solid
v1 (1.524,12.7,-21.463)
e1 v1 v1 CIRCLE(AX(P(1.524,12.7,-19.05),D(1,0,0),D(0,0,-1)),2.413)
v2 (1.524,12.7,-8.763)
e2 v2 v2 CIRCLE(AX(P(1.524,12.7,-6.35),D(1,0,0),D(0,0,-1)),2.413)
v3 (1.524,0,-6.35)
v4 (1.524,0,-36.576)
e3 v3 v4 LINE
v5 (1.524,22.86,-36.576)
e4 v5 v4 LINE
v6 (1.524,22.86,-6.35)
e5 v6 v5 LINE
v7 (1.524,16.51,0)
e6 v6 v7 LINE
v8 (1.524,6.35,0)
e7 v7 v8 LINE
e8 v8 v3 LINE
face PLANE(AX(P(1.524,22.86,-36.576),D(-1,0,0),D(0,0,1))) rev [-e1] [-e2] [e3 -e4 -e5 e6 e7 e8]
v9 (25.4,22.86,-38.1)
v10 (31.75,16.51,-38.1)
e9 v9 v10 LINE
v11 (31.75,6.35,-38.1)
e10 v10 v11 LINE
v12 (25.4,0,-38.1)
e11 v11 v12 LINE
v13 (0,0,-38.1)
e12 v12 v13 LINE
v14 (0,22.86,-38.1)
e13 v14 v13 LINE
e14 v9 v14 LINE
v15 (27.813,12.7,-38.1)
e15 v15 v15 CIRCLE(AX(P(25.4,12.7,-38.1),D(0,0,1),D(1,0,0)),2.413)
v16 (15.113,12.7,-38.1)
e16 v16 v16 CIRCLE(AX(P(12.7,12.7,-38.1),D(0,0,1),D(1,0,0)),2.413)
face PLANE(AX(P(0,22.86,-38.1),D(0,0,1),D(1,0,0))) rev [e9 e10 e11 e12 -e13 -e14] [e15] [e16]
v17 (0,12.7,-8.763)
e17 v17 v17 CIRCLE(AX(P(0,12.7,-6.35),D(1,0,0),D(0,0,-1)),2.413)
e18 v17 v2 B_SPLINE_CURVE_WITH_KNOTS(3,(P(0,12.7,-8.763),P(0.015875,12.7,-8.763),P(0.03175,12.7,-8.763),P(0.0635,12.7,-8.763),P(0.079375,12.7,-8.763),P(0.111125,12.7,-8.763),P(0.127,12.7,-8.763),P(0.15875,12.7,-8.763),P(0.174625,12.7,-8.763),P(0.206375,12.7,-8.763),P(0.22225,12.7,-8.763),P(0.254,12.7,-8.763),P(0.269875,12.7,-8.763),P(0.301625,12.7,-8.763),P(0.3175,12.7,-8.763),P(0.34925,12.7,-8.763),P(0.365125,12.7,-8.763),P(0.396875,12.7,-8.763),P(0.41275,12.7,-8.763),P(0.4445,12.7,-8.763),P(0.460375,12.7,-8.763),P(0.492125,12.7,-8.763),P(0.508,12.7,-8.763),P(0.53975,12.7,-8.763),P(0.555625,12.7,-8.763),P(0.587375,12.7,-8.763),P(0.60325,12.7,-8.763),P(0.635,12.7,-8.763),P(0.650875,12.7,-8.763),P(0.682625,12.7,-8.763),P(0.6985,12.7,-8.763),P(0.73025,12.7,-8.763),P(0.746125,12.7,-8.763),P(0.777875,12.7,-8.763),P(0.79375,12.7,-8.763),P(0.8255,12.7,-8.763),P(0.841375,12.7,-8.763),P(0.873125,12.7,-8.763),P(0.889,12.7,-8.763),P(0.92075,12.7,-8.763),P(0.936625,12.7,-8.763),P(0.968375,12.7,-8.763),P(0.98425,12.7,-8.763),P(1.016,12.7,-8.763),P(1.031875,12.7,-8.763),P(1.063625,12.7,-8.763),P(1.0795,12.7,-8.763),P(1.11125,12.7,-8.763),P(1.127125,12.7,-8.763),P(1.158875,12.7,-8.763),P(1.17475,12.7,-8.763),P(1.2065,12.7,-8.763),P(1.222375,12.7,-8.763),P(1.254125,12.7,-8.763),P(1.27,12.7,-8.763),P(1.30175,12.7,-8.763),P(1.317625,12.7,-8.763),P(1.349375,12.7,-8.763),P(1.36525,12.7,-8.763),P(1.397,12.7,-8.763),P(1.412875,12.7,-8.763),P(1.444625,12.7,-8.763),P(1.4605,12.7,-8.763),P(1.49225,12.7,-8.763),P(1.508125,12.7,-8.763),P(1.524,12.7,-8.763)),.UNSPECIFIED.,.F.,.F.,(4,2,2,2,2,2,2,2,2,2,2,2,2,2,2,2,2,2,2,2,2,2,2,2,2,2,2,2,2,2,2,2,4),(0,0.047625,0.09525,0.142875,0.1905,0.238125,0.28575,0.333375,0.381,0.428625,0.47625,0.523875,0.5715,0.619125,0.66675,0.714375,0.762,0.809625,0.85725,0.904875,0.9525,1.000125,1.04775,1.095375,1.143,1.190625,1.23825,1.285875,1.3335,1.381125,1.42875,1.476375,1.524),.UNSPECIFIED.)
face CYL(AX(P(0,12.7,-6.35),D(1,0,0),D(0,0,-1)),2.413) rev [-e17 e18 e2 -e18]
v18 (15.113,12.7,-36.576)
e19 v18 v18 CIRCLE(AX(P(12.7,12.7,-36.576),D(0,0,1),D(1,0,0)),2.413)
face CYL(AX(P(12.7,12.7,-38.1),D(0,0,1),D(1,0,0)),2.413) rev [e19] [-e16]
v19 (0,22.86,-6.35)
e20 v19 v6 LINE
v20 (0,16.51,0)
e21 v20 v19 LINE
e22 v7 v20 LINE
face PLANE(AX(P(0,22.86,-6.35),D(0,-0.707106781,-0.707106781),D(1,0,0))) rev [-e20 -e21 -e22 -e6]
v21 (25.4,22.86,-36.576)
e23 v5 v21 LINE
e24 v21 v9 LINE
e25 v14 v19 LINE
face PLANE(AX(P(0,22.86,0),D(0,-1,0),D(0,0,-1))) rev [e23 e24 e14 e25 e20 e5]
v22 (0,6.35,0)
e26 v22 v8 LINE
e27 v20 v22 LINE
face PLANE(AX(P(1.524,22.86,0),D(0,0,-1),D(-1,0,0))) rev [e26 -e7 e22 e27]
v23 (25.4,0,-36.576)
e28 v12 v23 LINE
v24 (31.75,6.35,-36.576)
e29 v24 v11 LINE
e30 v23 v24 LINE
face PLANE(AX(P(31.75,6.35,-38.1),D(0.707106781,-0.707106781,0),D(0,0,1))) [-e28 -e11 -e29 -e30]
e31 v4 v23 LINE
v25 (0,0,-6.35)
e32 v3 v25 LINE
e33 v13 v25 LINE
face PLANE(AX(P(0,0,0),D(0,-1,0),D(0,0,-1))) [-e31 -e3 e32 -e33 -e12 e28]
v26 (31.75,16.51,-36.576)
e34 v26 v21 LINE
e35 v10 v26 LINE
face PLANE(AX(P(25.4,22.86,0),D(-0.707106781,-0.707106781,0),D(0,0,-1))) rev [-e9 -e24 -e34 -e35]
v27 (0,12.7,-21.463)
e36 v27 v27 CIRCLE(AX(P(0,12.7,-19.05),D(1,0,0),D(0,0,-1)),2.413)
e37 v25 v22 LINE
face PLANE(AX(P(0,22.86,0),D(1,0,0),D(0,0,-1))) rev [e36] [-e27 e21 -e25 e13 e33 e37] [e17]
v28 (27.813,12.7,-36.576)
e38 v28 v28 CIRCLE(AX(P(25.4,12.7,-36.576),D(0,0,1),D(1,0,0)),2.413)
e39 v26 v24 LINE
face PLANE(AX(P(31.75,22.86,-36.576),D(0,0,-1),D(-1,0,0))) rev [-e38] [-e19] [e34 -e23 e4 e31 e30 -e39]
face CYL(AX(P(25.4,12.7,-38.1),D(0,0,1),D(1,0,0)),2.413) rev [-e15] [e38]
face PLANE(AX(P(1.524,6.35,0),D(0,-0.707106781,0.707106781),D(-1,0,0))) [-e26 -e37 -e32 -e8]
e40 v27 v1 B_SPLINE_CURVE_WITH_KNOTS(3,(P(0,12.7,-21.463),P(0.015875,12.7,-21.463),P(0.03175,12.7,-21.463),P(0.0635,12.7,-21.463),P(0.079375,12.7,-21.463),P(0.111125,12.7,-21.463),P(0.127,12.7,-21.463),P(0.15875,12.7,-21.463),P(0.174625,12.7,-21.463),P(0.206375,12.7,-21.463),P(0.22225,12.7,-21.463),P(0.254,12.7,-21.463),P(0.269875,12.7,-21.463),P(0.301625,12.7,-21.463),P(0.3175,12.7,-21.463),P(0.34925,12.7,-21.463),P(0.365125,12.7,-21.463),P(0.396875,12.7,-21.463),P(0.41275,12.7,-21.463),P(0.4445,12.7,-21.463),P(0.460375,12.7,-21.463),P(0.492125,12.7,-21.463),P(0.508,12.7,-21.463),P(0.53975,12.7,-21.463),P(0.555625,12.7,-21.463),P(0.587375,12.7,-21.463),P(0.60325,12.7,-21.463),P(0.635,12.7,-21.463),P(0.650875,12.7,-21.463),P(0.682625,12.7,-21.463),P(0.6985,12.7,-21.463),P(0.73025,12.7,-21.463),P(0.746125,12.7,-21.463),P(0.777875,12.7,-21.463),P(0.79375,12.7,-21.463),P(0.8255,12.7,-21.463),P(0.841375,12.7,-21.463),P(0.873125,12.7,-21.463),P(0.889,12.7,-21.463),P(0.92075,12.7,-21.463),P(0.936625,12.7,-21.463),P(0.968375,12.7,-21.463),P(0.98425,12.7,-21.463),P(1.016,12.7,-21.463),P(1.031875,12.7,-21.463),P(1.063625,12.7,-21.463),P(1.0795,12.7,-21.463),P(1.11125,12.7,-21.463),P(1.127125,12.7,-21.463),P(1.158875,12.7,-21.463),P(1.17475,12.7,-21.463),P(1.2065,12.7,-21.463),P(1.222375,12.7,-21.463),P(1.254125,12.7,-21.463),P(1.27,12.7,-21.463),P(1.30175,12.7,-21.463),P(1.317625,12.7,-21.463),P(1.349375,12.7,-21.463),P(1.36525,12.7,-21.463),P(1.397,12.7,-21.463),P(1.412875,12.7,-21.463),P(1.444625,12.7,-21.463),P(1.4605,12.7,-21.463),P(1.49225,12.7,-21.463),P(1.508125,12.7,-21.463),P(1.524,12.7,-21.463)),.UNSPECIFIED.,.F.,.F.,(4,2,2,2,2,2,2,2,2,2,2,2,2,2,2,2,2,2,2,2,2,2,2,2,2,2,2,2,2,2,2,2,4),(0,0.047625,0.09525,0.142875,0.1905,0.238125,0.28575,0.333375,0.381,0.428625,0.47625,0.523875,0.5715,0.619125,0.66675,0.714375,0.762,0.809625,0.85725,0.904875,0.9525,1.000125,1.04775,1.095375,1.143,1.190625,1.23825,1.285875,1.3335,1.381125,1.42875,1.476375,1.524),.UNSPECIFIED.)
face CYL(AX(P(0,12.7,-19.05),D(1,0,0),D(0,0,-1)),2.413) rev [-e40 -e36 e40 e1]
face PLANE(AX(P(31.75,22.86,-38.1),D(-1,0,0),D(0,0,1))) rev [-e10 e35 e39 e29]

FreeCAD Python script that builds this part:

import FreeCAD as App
import Part
import Sketcher

V = App.Vector
Q = App.Units.Quantity


def edges_at(feature, points):
    """Names of the edges that pass closest to the given points."""
    edges = feature.Shape.Edges
    near = lambda p: min(range(len(edges)), key=lambda i: edges[i].distToShape(Part.Vertex(*p))[0])
    return sorted({f"Edge{near(p) + 1}" for p in points})

doc = App.newDocument("Part")
body = doc.addObject("PartDesign::Body", "Body")

# Sketch on XZ plane
sketch1 = body.newObject("Sketcher::SketchObject", "Sketch")
sketch1.AttachmentSupport = (doc.getObject("XZ_Plane"), [""])
sketch1.MapMode = "FlatFace"
sketch1.addGeometry([
    Part.LineSegment(V(0, -38.1, 0), V(0, 0, 0)),  # 0
    Part.LineSegment(V(0, 0, 0), V(1.524, 0, 0)),  # 1
    Part.LineSegment(V(1.524, 0, 0), V(1.524, -36.576, 0)),  # 2
    Part.LineSegment(V(1.524, -36.576, 0), V(31.75, -36.576, 0)),  # 3
    Part.LineSegment(V(31.75, -36.576, 0), V(31.75, -38.1, 0)),  # 4
    Part.LineSegment(V(31.75, -38.1, 0), V(0, -38.1, 0)),  # 5
], False)
sketch1.addConstraint([
    Sketcher.Constraint("Coincident", 0, 2, 1, 1),
    Sketcher.Constraint("Coincident", 1, 2, 2, 1),
    Sketcher.Constraint("Coincident", 2, 2, 3, 1),
    Sketcher.Constraint("Coincident", 3, 2, 4, 1),
    Sketcher.Constraint("Coincident", 4, 2, 5, 1),
    Sketcher.Constraint("Coincident", 5, 2, 0, 1),
    Sketcher.Constraint("Vertical", 0),
    Sketcher.Constraint("Horizontal", 1),
    Sketcher.Constraint("Vertical", 2),
    Sketcher.Constraint("Horizontal", 3),
    Sketcher.Constraint("Vertical", 4),
    Sketcher.Constraint("Horizontal", 5),
    Sketcher.Constraint("Coincident", 0, 2, -1, 1),
    Sketcher.Constraint("Equal", 1, 4),
    Sketcher.Constraint("DistanceY", 0, 1, 0, 2, Q("1.5 in")),
    Sketcher.Constraint("DistanceX", 1, 1, 1, 2, Q("0.06 in")),
    Sketcher.Constraint("DistanceX", 3, 1, 3, 2, Q("1.19 in")),
])
pad1 = body.newObject("PartDesign::Pad", "Pad")
pad1.Profile = sketch1
pad1.Length = Q("0.9 in")
pad1.Reversed = True

# Sketch on YZ plane
sketch2 = body.newObject("Sketcher::SketchObject", "Sketch001")
sketch2.AttachmentSupport = (doc.getObject("YZ_Plane"), [""])
sketch2.MapMode = "FlatFace"
sketch2.AttachmentOffset = App.Placement(V(0, 0, 0.06 * 25.4), App.Rotation())
sketch2.addGeometry([
    Part.Circle(V(12.7, -6.35, 0), V(0, 0, 1), 2.413),
    Part.Circle(V(12.7, -19.05, 0), V(0, 0, 1), 2.413),
], False)
sketch2.addConstraint([
    Sketcher.Constraint("Equal", 0, 1),
    Sketcher.Constraint("Vertical", 0, 3, 1, 3),
    Sketcher.Constraint("Diameter", 0, Q("0.19 in")),
    Sketcher.Constraint("DistanceX", -1, 1, 0, 3, Q("0.5 in")),
    Sketcher.Constraint("DistanceY", 1, 3, 0, 3, Q("0.5 in")),
    Sketcher.Constraint("DistanceY", 0, 3, -1, 1, Q("0.25 in")),
])
pocket1 = body.newObject("PartDesign::Pocket", "Pocket")
pocket1.Profile = sketch2
pocket1.Type = "ThroughAll"

# Sketch on XY plane
sketch3 = body.newObject("Sketcher::SketchObject", "Sketch002")
sketch3.AttachmentSupport = (doc.getObject("XY_Plane"), [""])
sketch3.MapMode = "FlatFace"
sketch3.AttachmentOffset = App.Placement(V(0, 0, -1.44 * 25.4), App.Rotation())
sketch3.addGeometry([
    Part.Circle(V(25.4, 12.7, 0), V(0, 0, 1), 2.413),
    Part.Circle(V(12.7, 12.7, 0), V(0, 0, 1), 2.413),
], False)
sketch3.addConstraint([
    Sketcher.Constraint("Equal", 0, 1),
    Sketcher.Constraint("Horizontal", 0, 3, 1, 3),
    Sketcher.Constraint("Diameter", 0, Q("0.19 in")),
    Sketcher.Constraint("DistanceX", -1, 1, 0, 3, Q("1 in")),
    Sketcher.Constraint("DistanceY", -1, 1, 0, 3, Q("0.5 in")),
    Sketcher.Constraint("DistanceX", -1, 1, 1, 3, Q("0.5 in")),
])
pocket2 = body.newObject("PartDesign::Pocket", "Pocket001")
pocket2.Profile = sketch3
pocket2.Type = "ThroughAll"
doc.recompute()

chamfer = body.newObject("PartDesign::Chamfer", "Chamfer")
chamfer.Base = (pocket2, edges_at(pocket2, [
    (31.75, 22.86, -37.338),
    (0.762, 22.86, 0),
    (31.75, 0, -37.338),
    (0.762, 0, 0),
]))
chamfer.Size = Q("0.25 in")

doc.recompute()
